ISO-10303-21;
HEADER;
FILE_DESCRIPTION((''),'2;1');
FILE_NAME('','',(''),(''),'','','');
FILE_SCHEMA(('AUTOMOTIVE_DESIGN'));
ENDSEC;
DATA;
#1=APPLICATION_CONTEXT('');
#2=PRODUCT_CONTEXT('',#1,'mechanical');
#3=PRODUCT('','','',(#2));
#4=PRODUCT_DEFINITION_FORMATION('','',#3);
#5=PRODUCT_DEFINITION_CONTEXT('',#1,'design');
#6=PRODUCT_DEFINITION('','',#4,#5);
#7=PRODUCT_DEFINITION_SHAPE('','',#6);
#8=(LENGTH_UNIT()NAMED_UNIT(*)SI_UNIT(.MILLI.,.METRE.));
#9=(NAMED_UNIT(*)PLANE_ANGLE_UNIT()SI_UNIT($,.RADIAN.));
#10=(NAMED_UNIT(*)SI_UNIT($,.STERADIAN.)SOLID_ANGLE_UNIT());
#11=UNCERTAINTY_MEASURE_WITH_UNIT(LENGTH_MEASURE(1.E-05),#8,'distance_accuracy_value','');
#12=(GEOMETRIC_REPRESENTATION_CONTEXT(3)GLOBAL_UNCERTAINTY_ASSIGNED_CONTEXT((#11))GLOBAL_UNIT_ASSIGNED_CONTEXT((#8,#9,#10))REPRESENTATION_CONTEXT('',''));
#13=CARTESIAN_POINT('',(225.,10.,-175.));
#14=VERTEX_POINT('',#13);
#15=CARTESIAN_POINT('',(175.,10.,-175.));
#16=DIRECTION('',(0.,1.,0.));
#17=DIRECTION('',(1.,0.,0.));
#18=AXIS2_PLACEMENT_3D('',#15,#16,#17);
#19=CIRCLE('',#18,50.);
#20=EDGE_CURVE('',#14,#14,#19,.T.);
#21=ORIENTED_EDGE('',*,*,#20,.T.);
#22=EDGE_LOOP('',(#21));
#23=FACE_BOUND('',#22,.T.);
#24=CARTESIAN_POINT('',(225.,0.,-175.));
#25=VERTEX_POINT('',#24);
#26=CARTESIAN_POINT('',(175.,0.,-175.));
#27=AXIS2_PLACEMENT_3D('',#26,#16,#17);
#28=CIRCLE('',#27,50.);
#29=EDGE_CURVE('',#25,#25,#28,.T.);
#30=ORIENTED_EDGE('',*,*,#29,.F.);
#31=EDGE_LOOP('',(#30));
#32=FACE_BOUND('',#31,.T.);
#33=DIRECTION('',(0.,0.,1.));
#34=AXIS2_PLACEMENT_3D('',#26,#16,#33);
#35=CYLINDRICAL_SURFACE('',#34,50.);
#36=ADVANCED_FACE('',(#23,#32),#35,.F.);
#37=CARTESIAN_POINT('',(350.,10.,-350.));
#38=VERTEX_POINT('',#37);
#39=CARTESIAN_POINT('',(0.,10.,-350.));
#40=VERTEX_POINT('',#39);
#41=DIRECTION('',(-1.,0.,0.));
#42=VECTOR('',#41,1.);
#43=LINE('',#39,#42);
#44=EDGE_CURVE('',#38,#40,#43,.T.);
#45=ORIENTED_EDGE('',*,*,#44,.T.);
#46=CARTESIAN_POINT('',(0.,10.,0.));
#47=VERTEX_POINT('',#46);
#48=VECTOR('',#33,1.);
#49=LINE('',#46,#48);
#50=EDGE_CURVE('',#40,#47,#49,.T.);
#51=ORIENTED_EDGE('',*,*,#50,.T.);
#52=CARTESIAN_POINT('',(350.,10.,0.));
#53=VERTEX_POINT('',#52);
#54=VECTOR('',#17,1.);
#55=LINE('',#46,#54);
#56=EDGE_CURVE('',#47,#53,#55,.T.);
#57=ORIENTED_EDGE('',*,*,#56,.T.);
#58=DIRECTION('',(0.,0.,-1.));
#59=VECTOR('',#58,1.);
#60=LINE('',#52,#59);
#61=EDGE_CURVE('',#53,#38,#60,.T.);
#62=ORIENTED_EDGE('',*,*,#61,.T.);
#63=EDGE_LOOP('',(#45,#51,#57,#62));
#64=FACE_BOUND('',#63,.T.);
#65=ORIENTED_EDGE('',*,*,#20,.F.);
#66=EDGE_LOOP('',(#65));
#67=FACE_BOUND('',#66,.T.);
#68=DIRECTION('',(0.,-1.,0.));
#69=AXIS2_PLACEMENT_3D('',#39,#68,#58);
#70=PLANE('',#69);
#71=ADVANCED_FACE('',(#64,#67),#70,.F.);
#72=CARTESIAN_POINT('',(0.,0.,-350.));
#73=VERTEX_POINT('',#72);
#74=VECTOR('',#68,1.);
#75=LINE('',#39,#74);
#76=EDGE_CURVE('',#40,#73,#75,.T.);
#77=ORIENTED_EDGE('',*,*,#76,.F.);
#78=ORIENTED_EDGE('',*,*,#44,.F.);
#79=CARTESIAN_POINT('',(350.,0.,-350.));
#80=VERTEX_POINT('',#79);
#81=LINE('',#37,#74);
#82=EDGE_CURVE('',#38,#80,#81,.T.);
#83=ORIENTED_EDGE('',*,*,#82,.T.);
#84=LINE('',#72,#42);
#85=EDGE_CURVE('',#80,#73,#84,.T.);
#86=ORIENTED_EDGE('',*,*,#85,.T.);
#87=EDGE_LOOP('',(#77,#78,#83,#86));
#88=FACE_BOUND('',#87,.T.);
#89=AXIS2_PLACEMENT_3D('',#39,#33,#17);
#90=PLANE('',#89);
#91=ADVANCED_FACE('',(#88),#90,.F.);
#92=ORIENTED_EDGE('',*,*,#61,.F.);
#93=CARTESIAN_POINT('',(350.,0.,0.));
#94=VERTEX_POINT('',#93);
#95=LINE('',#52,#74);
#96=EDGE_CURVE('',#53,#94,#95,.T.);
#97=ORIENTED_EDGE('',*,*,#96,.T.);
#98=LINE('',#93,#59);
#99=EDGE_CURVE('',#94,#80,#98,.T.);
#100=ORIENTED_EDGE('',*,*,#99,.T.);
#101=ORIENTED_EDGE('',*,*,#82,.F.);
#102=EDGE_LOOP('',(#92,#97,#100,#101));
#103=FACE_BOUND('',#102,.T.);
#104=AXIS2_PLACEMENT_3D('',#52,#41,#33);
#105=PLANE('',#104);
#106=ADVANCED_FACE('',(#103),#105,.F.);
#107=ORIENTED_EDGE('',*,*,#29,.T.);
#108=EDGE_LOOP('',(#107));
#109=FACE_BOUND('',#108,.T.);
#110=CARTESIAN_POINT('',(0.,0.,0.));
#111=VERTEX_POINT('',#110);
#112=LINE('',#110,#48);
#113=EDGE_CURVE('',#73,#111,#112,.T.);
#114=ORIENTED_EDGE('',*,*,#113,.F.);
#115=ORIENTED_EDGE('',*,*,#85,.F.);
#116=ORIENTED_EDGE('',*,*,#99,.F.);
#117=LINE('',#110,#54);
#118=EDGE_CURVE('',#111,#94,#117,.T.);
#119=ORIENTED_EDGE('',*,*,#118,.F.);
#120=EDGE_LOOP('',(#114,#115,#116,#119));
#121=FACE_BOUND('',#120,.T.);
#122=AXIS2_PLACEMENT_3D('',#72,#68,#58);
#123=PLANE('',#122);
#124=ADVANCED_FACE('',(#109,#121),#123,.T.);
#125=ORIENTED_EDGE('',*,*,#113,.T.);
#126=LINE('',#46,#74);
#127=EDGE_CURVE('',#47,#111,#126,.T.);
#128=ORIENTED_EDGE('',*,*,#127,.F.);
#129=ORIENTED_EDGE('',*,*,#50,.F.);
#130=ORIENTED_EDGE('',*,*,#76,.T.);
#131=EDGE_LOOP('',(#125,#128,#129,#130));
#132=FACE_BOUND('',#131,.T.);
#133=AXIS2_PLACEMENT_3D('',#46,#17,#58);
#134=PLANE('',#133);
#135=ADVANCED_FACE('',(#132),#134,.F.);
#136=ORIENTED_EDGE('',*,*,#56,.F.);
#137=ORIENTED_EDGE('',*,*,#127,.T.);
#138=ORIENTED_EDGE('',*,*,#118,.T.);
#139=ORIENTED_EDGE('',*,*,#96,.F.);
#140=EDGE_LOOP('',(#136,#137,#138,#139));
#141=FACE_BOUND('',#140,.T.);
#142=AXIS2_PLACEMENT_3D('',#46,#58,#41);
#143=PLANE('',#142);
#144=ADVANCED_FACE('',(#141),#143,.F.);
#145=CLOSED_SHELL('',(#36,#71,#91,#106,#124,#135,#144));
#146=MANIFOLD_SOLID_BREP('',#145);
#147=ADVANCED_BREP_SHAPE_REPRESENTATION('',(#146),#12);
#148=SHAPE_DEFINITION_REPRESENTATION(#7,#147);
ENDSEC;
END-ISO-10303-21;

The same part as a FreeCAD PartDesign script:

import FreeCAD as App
import Part
import Sketcher
Q = App.Units.Quantity

doc = App.newDocument("Part")
body = doc.addObject("PartDesign::Body", "Body")

# Sketch on XZ plane
sketch1 = body.newObject("Sketcher::SketchObject", "Sketch")
sketch1.AttachmentSupport = (doc.getObject("XZ_Plane"), [""])
sketch1.MapMode = "FlatFace"
sketch1.addGeometry([
    Part.LineSegment(App.Vector(0, -350, 0), App.Vector(0, 0, 0)),
    Part.LineSegment(App.Vector(0, 0, 0), App.Vector(350, 0, 0)),
    Part.LineSegment(App.Vector(350, 0, 0), App.Vector(350, -350, 0)),
    Part.LineSegment(App.Vector(350, -350, 0), App.Vector(0, -350, 0)),
], False)
sketch1.addConstraint([
    Sketcher.Constraint("Coincident", 0, 2, 1, 1),
    Sketcher.Constraint("Coincident", 1, 2, 2, 1),
    Sketcher.Constraint("Coincident", 2, 2, 3, 1),
    Sketcher.Constraint("Coincident", 3, 2, 0, 1),
    Sketcher.Constraint("Vertical", 0),
    Sketcher.Constraint("Horizontal", 1),
    Sketcher.Constraint("Vertical", 2),
    Sketcher.Constraint("Horizontal", 3),
    Sketcher.Constraint("Coincident", 0, 2, -1, 1),
    Sketcher.Constraint("Equal", 3, 0),
    Sketcher.Constraint("DistanceX", 1, 1, 1, 2, Q("350 mm")),
])
pad1 = body.newObject("PartDesign::Pad", "Pad")
pad1.Profile = sketch1
pad1.Length = 10
pad1.Reversed = True

# Sketch on XZ plane
sketch2 = body.newObject("Sketcher::SketchObject", "Sketch001")
sketch2.AttachmentSupport = (doc.getObject("XZ_Plane"), [""])
sketch2.MapMode = "FlatFace"
sketch2.AttachmentOffset = App.Placement(App.Vector(0, 0, -10), App.Rotation())
sketch2.addGeometry(Part.Circle(App.Vector(175, -175, 0), App.Vector(0, 0, 1), 50), False)
sketch2.addConstraint([
    Sketcher.Constraint("Diameter", 0, Q("100 mm")),
    Sketcher.Constraint("DistanceX", -1, 1, 0, 3, Q("175 mm")),
    Sketcher.Constraint("DistanceY", 0, 3, -1, 1, Q("175 mm")),
])
pocket1 = body.newObject("PartDesign::Pocket", "Pocket")
pocket1.Profile = sketch2
pocket1.Length = 10
pocket1.Reversed = True

doc.recompute()
